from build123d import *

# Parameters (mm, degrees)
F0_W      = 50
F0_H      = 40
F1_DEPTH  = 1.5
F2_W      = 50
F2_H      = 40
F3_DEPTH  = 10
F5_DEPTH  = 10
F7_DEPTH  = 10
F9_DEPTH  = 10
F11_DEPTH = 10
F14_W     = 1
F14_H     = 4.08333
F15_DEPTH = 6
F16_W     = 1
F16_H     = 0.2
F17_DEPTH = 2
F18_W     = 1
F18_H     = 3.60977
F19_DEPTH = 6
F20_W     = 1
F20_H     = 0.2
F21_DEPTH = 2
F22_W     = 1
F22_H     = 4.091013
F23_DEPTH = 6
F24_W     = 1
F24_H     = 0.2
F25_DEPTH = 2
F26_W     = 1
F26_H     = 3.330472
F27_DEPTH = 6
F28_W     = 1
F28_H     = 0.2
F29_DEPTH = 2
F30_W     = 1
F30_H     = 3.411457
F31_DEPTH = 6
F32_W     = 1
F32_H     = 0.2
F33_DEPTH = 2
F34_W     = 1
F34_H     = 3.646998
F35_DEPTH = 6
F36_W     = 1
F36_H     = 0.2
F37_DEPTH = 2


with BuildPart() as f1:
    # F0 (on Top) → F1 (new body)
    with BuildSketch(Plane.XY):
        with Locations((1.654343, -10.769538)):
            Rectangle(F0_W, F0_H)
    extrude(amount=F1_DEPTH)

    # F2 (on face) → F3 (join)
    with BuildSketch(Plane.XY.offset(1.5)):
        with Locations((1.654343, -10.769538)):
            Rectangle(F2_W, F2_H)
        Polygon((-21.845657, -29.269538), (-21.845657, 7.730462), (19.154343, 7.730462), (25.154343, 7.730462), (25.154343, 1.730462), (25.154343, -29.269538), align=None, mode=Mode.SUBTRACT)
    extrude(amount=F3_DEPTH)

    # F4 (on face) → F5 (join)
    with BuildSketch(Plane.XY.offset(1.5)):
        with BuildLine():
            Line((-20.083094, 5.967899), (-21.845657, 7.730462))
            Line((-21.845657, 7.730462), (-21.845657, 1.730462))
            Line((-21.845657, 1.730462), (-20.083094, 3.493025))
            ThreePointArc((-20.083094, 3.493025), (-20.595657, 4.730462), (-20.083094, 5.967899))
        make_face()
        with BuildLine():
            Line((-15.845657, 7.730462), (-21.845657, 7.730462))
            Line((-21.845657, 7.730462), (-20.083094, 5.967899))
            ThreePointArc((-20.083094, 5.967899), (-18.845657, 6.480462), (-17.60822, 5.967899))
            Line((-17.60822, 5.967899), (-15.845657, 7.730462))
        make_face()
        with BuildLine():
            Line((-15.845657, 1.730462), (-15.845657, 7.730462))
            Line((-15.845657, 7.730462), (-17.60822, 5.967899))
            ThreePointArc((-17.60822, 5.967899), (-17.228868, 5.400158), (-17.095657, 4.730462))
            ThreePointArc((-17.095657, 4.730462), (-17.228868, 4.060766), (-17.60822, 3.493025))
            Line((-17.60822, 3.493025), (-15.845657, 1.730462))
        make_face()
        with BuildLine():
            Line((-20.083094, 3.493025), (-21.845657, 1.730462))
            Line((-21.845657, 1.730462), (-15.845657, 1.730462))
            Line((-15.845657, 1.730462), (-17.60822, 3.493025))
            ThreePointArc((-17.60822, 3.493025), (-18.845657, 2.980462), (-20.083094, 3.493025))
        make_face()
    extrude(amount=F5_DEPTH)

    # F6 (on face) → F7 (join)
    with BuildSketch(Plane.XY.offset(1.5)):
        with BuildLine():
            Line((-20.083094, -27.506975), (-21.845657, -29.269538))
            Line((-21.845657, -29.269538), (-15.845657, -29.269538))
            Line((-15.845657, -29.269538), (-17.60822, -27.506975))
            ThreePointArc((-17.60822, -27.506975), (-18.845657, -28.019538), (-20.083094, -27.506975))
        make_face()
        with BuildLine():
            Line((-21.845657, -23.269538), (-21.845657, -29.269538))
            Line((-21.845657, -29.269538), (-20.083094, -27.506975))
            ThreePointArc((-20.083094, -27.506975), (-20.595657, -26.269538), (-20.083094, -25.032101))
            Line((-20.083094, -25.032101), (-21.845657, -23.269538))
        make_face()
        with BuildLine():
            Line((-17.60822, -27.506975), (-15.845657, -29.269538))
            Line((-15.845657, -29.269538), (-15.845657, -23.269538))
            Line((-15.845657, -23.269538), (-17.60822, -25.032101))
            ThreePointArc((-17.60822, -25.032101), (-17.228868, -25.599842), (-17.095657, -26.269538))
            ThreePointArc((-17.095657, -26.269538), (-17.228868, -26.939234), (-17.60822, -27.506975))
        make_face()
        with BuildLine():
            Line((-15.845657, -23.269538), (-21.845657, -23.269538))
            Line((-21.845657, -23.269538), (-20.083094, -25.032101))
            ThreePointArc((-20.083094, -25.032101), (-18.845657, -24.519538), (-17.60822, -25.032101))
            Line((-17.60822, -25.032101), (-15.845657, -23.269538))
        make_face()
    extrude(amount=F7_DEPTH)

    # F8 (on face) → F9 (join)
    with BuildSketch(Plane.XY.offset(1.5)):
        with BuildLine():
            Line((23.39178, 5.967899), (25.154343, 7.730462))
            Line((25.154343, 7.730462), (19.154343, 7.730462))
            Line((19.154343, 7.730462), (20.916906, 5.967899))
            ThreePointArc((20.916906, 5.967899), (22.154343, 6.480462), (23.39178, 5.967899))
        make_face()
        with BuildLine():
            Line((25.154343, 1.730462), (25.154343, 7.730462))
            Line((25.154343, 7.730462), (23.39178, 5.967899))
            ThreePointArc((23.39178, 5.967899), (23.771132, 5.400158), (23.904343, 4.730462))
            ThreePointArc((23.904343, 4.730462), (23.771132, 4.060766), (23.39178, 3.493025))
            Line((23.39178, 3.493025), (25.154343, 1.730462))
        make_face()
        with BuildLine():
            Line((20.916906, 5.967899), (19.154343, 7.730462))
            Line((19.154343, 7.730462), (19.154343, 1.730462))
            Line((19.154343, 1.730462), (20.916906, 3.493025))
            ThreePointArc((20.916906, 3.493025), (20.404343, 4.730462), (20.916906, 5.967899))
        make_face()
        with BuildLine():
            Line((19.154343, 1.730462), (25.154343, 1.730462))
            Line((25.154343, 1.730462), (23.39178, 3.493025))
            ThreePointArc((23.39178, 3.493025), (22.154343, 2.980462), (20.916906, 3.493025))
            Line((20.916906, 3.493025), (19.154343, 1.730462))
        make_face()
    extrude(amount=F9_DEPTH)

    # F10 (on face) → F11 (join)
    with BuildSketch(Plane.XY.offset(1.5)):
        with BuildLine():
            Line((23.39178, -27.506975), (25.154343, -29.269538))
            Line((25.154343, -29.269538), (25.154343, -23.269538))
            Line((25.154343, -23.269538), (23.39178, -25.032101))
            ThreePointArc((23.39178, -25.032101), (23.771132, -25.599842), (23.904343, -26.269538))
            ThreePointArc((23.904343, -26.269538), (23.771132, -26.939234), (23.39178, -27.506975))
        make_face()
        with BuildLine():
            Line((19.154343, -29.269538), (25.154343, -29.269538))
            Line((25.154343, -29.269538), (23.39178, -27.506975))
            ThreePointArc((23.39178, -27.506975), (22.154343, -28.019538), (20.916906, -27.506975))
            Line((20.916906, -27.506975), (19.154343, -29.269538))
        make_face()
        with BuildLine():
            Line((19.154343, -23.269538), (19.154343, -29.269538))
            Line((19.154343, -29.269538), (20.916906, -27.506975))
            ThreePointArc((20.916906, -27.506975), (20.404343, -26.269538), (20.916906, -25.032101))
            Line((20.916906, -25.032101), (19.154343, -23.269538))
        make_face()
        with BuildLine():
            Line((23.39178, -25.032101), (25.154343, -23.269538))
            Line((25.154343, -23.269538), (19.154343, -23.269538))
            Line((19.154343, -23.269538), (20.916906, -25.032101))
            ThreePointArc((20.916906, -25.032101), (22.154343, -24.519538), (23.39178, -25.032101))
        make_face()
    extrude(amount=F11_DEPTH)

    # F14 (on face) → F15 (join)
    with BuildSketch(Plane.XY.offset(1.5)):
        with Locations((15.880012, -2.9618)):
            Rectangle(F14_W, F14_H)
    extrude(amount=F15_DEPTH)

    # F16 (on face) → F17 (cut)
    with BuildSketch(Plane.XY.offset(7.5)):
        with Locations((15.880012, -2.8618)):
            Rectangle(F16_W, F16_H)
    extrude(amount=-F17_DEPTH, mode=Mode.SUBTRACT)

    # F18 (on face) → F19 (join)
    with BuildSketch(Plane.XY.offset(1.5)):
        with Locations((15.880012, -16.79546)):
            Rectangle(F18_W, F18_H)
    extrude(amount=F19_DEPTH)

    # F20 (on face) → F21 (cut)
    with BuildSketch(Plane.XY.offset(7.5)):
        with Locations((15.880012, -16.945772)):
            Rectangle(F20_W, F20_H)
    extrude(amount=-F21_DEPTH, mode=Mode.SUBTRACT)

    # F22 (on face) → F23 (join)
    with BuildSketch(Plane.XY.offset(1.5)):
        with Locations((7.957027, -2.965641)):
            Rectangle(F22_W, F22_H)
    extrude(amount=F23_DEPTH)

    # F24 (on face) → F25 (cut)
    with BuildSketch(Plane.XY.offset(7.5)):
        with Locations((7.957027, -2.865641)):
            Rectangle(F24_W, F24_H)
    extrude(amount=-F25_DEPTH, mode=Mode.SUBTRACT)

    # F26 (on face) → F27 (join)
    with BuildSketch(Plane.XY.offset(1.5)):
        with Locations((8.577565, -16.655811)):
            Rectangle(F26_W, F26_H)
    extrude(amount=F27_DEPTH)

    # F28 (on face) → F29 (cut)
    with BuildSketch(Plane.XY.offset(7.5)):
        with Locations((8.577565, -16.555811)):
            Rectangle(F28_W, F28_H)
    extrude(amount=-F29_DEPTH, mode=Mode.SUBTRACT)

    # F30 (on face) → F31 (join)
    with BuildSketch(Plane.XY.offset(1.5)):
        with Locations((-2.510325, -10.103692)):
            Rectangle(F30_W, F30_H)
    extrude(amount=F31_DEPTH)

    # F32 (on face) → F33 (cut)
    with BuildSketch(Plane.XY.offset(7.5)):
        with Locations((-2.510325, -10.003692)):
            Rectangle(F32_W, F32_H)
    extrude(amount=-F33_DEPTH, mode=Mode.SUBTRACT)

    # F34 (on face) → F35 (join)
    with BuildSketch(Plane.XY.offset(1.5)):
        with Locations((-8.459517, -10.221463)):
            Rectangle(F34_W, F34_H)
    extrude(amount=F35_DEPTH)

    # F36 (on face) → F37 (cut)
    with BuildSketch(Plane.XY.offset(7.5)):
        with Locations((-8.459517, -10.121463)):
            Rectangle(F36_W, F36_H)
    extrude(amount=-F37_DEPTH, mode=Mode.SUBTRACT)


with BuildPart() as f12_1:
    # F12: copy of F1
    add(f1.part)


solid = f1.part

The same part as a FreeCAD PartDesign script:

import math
import FreeCAD as App
import Part
import Sketcher
from FreeCAD import Vector

doc = App.newDocument("Part")
body = doc.addObject("PartDesign::Body", "Body")

# Sketch on XY plane
sketch1 = body.newObject("Sketcher::SketchObject", "Sketch")
sketch1.AttachmentSupport = (doc.getObject("XY_Plane"), [""])
sketch1.MapMode = "FlatFace"
sketch1.addGeometry([
    Part.LineSegment(Vector(-23.345657, 9.230462, 0), Vector(-23.345657, -30.769538, 0)),
    Part.LineSegment(Vector(-23.345657, -30.769538, 0), Vector(26.654343, -30.769538, 0)),
    Part.LineSegment(Vector(26.654343, -30.769538, 0), Vector(26.654343, 9.230462, 0)),
    Part.LineSegment(Vector(26.654343, 9.230462, 0), Vector(-23.345657, 9.230462, 0)),
], False)
sketch1.addConstraint([
    Sketcher.Constraint("Coincident", 0, 2, 1, 1),
    Sketcher.Constraint("Coincident", 1, 2, 2, 1),
    Sketcher.Constraint("Coincident", 2, 2, 3, 1),
    Sketcher.Constraint("Coincident", 3, 2, 0, 1),
    Sketcher.Constraint("Vertical", 0),
    Sketcher.Constraint("Horizontal", 1),
    Sketcher.Constraint("Vertical", 2),
    Sketcher.Constraint("Horizontal", 3),
    Sketcher.Constraint("DistanceX", 1, 1, 1, 2, 50.0),
    Sketcher.Constraint("DistanceY", 0, 2, 0, 1, 40.0),
    Sketcher.Constraint("DistanceY", 0, 2, -1, 1, 30.769538),
    Sketcher.Constraint("DistanceX", 0, 2, -1, 1, 23.345657),
])
pad1 = body.newObject("PartDesign::Pad", "Pad")
pad1.Profile = sketch1
pad1.Length = 1.5

# Sketch on XY plane
sketch2 = body.newObject("Sketcher::SketchObject", "Sketch001")
sketch2.AttachmentSupport = (doc.getObject("XY_Plane"), [""])
sketch2.MapMode = "FlatFace"
sketch2.AttachmentOffset = App.Placement(Vector(0, 0, 1.5), App.Rotation())
sketch2.addGeometry([
    Part.LineSegment(Vector(-23.345657, 9.230462, 0), Vector(-23.345657, -30.769538, 0)),  # 0
    Part.LineSegment(Vector(-23.345657, -30.769538, 0), Vector(26.654343, -30.769538, 0)),  # 1
    Part.LineSegment(Vector(26.654343, -30.769538, 0), Vector(26.654343, 9.230462, 0)),  # 2
    Part.LineSegment(Vector(26.654343, 9.230462, 0), Vector(-23.345657, 9.230462, 0)),  # 3
    Part.LineSegment(Vector(25.154343, -29.269538, 0), Vector(-21.845657, -29.269538, 0)),  # 4
    Part.LineSegment(Vector(-21.845657, -29.269538, 0), Vector(-21.845657, 7.730462, 0)),  # 5
    Part.LineSegment(Vector(-21.845657, 7.730462, 0), Vector(25.154343, 7.730462, 0)),  # 6
    Part.LineSegment(Vector(25.154343, 7.730462, 0), Vector(25.154343, -29.269538, 0)),  # 7
], False)
sketch2.addConstraint([
    Sketcher.Constraint("Coincident", 0, 2, 1, 1),
    Sketcher.Constraint("Coincident", 1, 2, 2, 1),
    Sketcher.Constraint("Coincident", 2, 2, 3, 1),
    Sketcher.Constraint("Coincident", 3, 2, 0, 1),
    Sketcher.Constraint("Coincident", 4, 2, 5, 1),
    Sketcher.Constraint("Coincident", 5, 2, 6, 1),
    Sketcher.Constraint("Coincident", 6, 2, 7, 1),
    Sketcher.Constraint("Coincident", 7, 2, 4, 1),
    Sketcher.Constraint("Vertical", 0),
    Sketcher.Constraint("Horizontal", 1),
    Sketcher.Constraint("Vertical", 2),
    Sketcher.Constraint("Horizontal", 3),
    Sketcher.Constraint("Horizontal", 4),
    Sketcher.Constraint("Vertical", 5),
    Sketcher.Constraint("Horizontal", 6),
    Sketcher.Constraint("Vertical", 7),
    Sketcher.Constraint("DistanceX", 1, 1, 1, 2, 50.0),
    Sketcher.Constraint("DistanceX", 4, 2, 4, 1, 47.0),
    Sketcher.Constraint("DistanceY", 0, 2, 0, 1, 40.0),
    Sketcher.Constraint("DistanceY", 5, 1, 5, 2, 37.0),
    Sketcher.Constraint("DistanceX", 0, 2, 4, 2, 1.5),
    Sketcher.Constraint("DistanceY", 0, 2, 4, 2, 1.5),
    Sketcher.Constraint("DistanceY", 0, 2, -1, 1, 30.769538),
    Sketcher.Constraint("DistanceX", 0, 2, -1, 1, 23.345657),
])
pad2 = body.newObject("PartDesign::Pad", "Pad001")
pad2.Profile = sketch2
pad2.Length = 10

# Sketch on XY plane
sketch3 = body.newObject("Sketcher::SketchObject", "Sketch002")
sketch3.AttachmentSupport = (doc.getObject("XY_Plane"), [""])
sketch3.MapMode = "FlatFace"
sketch3.AttachmentOffset = App.Placement(Vector(0, 0, 1.5), App.Rotation())
sketch3.addGeometry([
    Part.LineSegment(Vector(-21.845657, 7.730462, 0), Vector(-21.845657, 1.730462, 0)),  # 0
    Part.LineSegment(Vector(-21.845657, 1.730462, 0), Vector(-15.845657, 1.730462, 0)),  # 1
    Part.LineSegment(Vector(-15.845657, 1.730462, 0), Vector(-15.845657, 7.730462, 0)),  # 2
    Part.LineSegment(Vector(-15.845657, 7.730462, 0), Vector(-21.845657, 7.730462, 0)),  # 3
    Part.ArcOfCircle(Part.Circle(Vector(-18.845656, 4.730462, 0), Vector(0, 0, 1), 1.750001), math.radians(135.000015), math.radians(224.999985)),  # 4
    Part.ArcOfCircle(Part.Circle(Vector(-18.845657, 4.730461, 0), Vector(0, 0, 1), 1.750001), math.radians(45.000015), math.radians(134.999985)),  # 5
    Part.ArcOfCircle(Part.Circle(Vector(-18.84566, 4.730461, 0), Vector(0, 0, 1), 1.750003), math.radians(0.000036), math.radians(44.999949)),  # 6
    Part.ArcOfCircle(Part.Circle(Vector(-18.84566, 4.730463, 0), Vector(0, 0, 1), 1.750003), math.radians(-44.999949), math.radians(-0.000036)),  # 7
    Part.ArcOfCircle(Part.Circle(Vector(-18.845657, 4.730463, 0), Vector(0, 0, 1), 1.750001), math.radians(-134.999985), math.radians(-45.000015)),  # 8
], False)
sketch3.addConstraint([
    Sketcher.Constraint("Coincident", 0, 2, 1, 1),
    Sketcher.Constraint("Coincident", 1, 2, 2, 1),
    Sketcher.Constraint("Coincident", 2, 2, 3, 1),
    Sketcher.Constraint("Coincident", 3, 2, 0, 1),
    Sketcher.Constraint("Tangent", 4, 1, 5, 2),
    Sketcher.Constraint("Tangent", 5, 1, 6, 2),
    Sketcher.Constraint("Tangent", 6, 1, 7, 2),
    Sketcher.Constraint("Tangent", 7, 1, 8, 2),
    Sketcher.Constraint("Tangent", 8, 1, 4, 2),
    Sketcher.Constraint("Vertical", 0),
    Sketcher.Constraint("Horizontal", 1),
    Sketcher.Constraint("Vertical", 2),
    Sketcher.Constraint("Horizontal", 3),
    Sketcher.Constraint("Coincident", 6, 3, 4, 3),
    Sketcher.Constraint("Horizontal", 4, 1, 5, 1),
    Sketcher.Constraint("Horizontal", 8, 3, 6, 1),
    Sketcher.Constraint("Horizontal", 7, 1, 8, 1),
    Sketcher.Constraint("Vertical", 5, 1, 7, 1),
    Sketcher.Constraint("Equal", 3, 0),
    Sketcher.Constraint("DistanceX", 1, 1, 1, 2, 6.0),
    Sketcher.Constraint("Radius", 4, 1.750001),
    Sketcher.Constraint("DistanceY", 0, 2, 6, 3, 2.999999),
    Sketcher.Constraint("DistanceX", 0, 2, 5, 3, 3.0),
    Sketcher.Constraint("DistanceY", -1, 1, 4, 1, 5.967899),
    Sketcher.Constraint("DistanceY", -1, 1, 5, 3, 4.730461),
    Sketcher.Constraint("DistanceX", 6, 3, -1, 1, 18.84566),
])
pad3 = body.newObject("PartDesign::Pad", "Pad002")
pad3.Profile = sketch3
pad3.Length = 10

# Sketch on XY plane
sketch4 = body.newObject("Sketcher::SketchObject", "Sketch003")
sketch4.AttachmentSupport = (doc.getObject("XY_Plane"), [""])
sketch4.MapMode = "FlatFace"
sketch4.AttachmentOffset = App.Placement(Vector(0, 0, 1.5), App.Rotation())
sketch4.addGeometry([
    Part.LineSegment(Vector(-21.845657, -29.269538, 0), Vector(-15.845657, -29.269538, 0)),  # 0
    Part.LineSegment(Vector(-15.845657, -29.269538, 0), Vector(-15.845657, -23.269538, 0)),  # 1
    Part.LineSegment(Vector(-15.845657, -23.269538, 0), Vector(-21.845657, -23.269538, 0)),  # 2
    Part.LineSegment(Vector(-21.845657, -23.269538, 0), Vector(-21.845657, -29.269538, 0)),  # 3
    Part.ArcOfCircle(Part.Circle(Vector(-18.84566, -26.269539, 0), Vector(0, 0, 1), 1.750003), math.radians(0.000036), math.radians(44.999949)),  # 4
    Part.ArcOfCircle(Part.Circle(Vector(-18.84566, -26.269537, 0), Vector(0, 0, 1), 1.750003), math.radians(-44.999949), math.radians(-0.000036)),  # 5
    Part.ArcOfCircle(Part.Circle(Vector(-18.845657, -26.269537, 0), Vector(0, 0, 1), 1.750001), math.radians(-134.999985), math.radians(-45.000015)),  # 6
    Part.ArcOfCircle(Part.Circle(Vector(-18.845656, -26.269538, 0), Vector(0, 0, 1), 1.750001), math.radians(135.000015), math.radians(224.999985)),  # 7
    Part.ArcOfCircle(Part.Circle(Vector(-18.845657, -26.269539, 0), Vector(0, 0, 1), 1.750001), math.radians(45.000015), math.radians(134.999985)),  # 8
], False)
sketch4.addConstraint([
    Sketcher.Constraint("Coincident", 0, 2, 1, 1),
    Sketcher.Constraint("Coincident", 1, 2, 2, 1),
    Sketcher.Constraint("Coincident", 2, 2, 3, 1),
    Sketcher.Constraint("Coincident", 3, 2, 0, 1),
    Sketcher.Constraint("Tangent", 4, 1, 5, 2),
    Sketcher.Constraint("Tangent", 5, 1, 6, 2),
    Sketcher.Constraint("Tangent", 6, 1, 7, 2),
    Sketcher.Constraint("Tangent", 7, 1, 8, 2),
    Sketcher.Constraint("Tangent", 8, 1, 4, 2),
    Sketcher.Constraint("Horizontal", 0),
    Sketcher.Constraint("Vertical", 1),
    Sketcher.Constraint("Horizontal", 2),
    Sketcher.Constraint("Vertical", 3),
    Sketcher.Constraint("Coincident", 6, 3, 4, 3),
    Sketcher.Constraint("Horizontal", 8, 3, 4, 1),
    Sketcher.Constraint("Horizontal", 5, 1, 6, 1),
    Sketcher.Constraint("Horizontal", 7, 1, 8, 1),
    Sketcher.Constraint("Vertical", 6, 1, 7, 1),
    Sketcher.Constraint("Equal", 2, 1),
    Sketcher.Constraint("DistanceX", 0, 1, 0, 2, 6.0),
    Sketcher.Constraint("Radius", 6, 1.750001),
    Sketcher.Constraint("DistanceX", 7, 3, 0, 2, 2.999999),
    Sketcher.Constraint("DistanceY", 0, 2, 7, 3, 3.0),
    Sketcher.Constraint("DistanceY", 7, 1, -1, 1, 25.032101),
    Sketcher.Constraint("DistanceX", 4, 3, -1, 1, 18.84566),
    Sketcher.Constraint("DistanceY", 4, 3, -1, 1, 26.269539),
])
pad4 = body.newObject("PartDesign::Pad", "Pad003")
pad4.Profile = sketch4
pad4.Length = 10

# Sketch on XY plane
sketch5 = body.newObject("Sketcher::SketchObject", "Sketch004")
sketch5.AttachmentSupport = (doc.getObject("XY_Plane"), [""])
sketch5.MapMode = "FlatFace"
sketch5.AttachmentOffset = App.Placement(Vector(0, 0, 1.5), App.Rotation())
sketch5.addGeometry([
    Part.LineSegment(Vector(25.154343, 7.730462, 0), Vector(19.154343, 7.730462, 0)),  # 0
    Part.LineSegment(Vector(19.154343, 7.730462, 0), Vector(19.154343, 1.730462, 0)),  # 1
    Part.LineSegment(Vector(19.154343, 1.730462, 0), Vector(25.154343, 1.730462, 0)),  # 2
    Part.LineSegment(Vector(25.154343, 1.730462, 0), Vector(25.154343, 7.730462, 0)),  # 3
    Part.ArcOfCircle(Part.Circle(Vector(22.154344, 4.730462, 0), Vector(0, 0, 1), 1.750001), math.radians(135.000015), math.radians(224.999985)),  # 4
    Part.ArcOfCircle(Part.Circle(Vector(22.154343, 4.730461, 0), Vector(0, 0, 1), 1.750001), math.radians(45.000015), math.radians(134.999985)),  # 5
    Part.ArcOfCircle(Part.Circle(Vector(22.15434, 4.730461, 0), Vector(0, 0, 1), 1.750003), math.radians(0.000036), math.radians(44.999949)),  # 6
    Part.ArcOfCircle(Part.Circle(Vector(22.15434, 4.730463, 0), Vector(0, 0, 1), 1.750003), math.radians(-44.999949), math.radians(-0.000036)),  # 7
    Part.ArcOfCircle(Part.Circle(Vector(22.154343, 4.730463, 0), Vector(0, 0, 1), 1.750001), math.radians(-134.999985), math.radians(-45.000015)),  # 8
], False)
sketch5.addConstraint([
    Sketcher.Constraint("Coincident", 0, 2, 1, 1),
    Sketcher.Constraint("Coincident", 1, 2, 2, 1),
    Sketcher.Constraint("Coincident", 2, 2, 3, 1),
    Sketcher.Constraint("Coincident", 3, 2, 0, 1),
    Sketcher.Constraint("Tangent", 4, 1, 5, 2),
    Sketcher.Constraint("Tangent", 5, 1, 6, 2),
    Sketcher.Constraint("Tangent", 6, 1, 7, 2),
    Sketcher.Constraint("Tangent", 7, 1, 8, 2),
    Sketcher.Constraint("Tangent", 8, 1, 4, 2),
    Sketcher.Constraint("Horizontal", 0),
    Sketcher.Constraint("Vertical", 1),
    Sketcher.Constraint("Horizontal", 2),
    Sketcher.Constraint("Vertical", 3),
    Sketcher.Constraint("Coincident", 6, 3, 4, 3),
    Sketcher.Constraint("Horizontal", 4, 1, 5, 1),
    Sketcher.Constraint("Horizontal", 8, 3, 6, 1),
    Sketcher.Constraint("Horizontal", 7, 1, 8, 1),
    Sketcher.Constraint("Vertical", 5, 1, 7, 1),
    Sketcher.Constraint("Equal", 2, 1),
    Sketcher.Constraint("DistanceX", 0, 2, 0, 1, 6.0),
    Sketcher.Constraint("Radius", 4, 1.750001),
    Sketcher.Constraint("DistanceY", 7, 3, 0, 2, 2.999999),
    Sketcher.Constraint("DistanceX", 0, 2, 8, 3, 3.0),
    Sketcher.Constraint("DistanceY", -1, 1, 4, 1, 5.967899),
    Sketcher.Constraint("DistanceY", -1, 1, 5, 3, 4.730461),
    Sketcher.Constraint("DistanceX", -1, 1, 6, 3, 22.15434),
])
pad5 = body.newObject("PartDesign::Pad", "Pad004")
pad5.Profile = sketch5
pad5.Length = 10

# Sketch on XY plane
sketch6 = body.newObject("Sketcher::SketchObject", "Sketch005")
sketch6.AttachmentSupport = (doc.getObject("XY_Plane"), [""])
sketch6.MapMode = "FlatFace"
sketch6.AttachmentOffset = App.Placement(Vector(0, 0, 1.5), App.Rotation())
sketch6.addGeometry([
    Part.LineSegment(Vector(25.154343, -29.269538, 0), Vector(25.154343, -23.269538, 0)),  # 0
    Part.LineSegment(Vector(25.154343, -23.269538, 0), Vector(19.154343, -23.269538, 0)),  # 1
    Part.LineSegment(Vector(19.154343, -23.269538, 0), Vector(19.154343, -29.269538, 0)),  # 2
    Part.LineSegment(Vector(19.154343, -29.269538, 0), Vector(25.154343, -29.269538, 0)),  # 3
    Part.ArcOfCircle(Part.Circle(Vector(22.15434, -26.269539, 0), Vector(0, 0, 1), 1.750003), math.radians(0.000036), math.radians(44.999949)),  # 4
    Part.ArcOfCircle(Part.Circle(Vector(22.15434, -26.269537, 0), Vector(0, 0, 1), 1.750003), math.radians(-44.999949), math.radians(-0.000036)),  # 5
    Part.ArcOfCircle(Part.Circle(Vector(22.154343, -26.269537, 0), Vector(0, 0, 1), 1.750001), math.radians(-134.999985), math.radians(-45.000015)),  # 6
    Part.ArcOfCircle(Part.Circle(Vector(22.154344, -26.269538, 0), Vector(0, 0, 1), 1.750001), math.radians(135.000015), math.radians(224.999985)),  # 7
    Part.ArcOfCircle(Part.Circle(Vector(22.154343, -26.269539, 0), Vector(0, 0, 1), 1.750001), math.radians(45.000015), math.radians(134.999985)),  # 8
], False)
sketch6.addConstraint([
    Sketcher.Constraint("Coincident", 0, 2, 1, 1),
    Sketcher.Constraint("Coincident", 1, 2, 2, 1),
    Sketcher.Constraint("Coincident", 2, 2, 3, 1),
    Sketcher.Constraint("Coincident", 3, 2, 0, 1),
    Sketcher.Constraint("Tangent", 4, 1, 5, 2),
    Sketcher.Constraint("Tangent", 5, 1, 6, 2),
    Sketcher.Constraint("Tangent", 6, 1, 7, 2),
    Sketcher.Constraint("Tangent", 7, 1, 8, 2),
    Sketcher.Constraint("Tangent", 8, 1, 4, 2),
    Sketcher.Constraint("Vertical", 0),
    Sketcher.Constraint("Horizontal", 1),
    Sketcher.Constraint("Vertical", 2),
    Sketcher.Constraint("Horizontal", 3),
    Sketcher.Constraint("Coincident", 6, 3, 4, 3),
    Sketcher.Constraint("Horizontal", 8, 3, 4, 1),
    Sketcher.Constraint("Horizontal", 5, 1, 6, 1),
    Sketcher.Constraint("Horizontal", 7, 1, 8, 1),
    Sketcher.Constraint("Vertical", 6, 1, 7, 1),
    Sketcher.Constraint("Equal", 3, 0),
    Sketcher.Constraint("DistanceX", 1, 2, 1, 1, 6.0),
    Sketcher.Constraint("Radius", 6, 1.750001),
    Sketcher.Constraint("DistanceX", 6, 3, 0, 2, 3.0),
    Sketcher.Constraint("DistanceY", 6, 3, 0, 2, 2.999999),
    Sketcher.Constraint("DistanceY", 7, 1, -1, 1, 25.032101),
    Sketcher.Constraint("DistanceX", -1, 1, 4, 3, 22.15434),
    Sketcher.Constraint("DistanceY", 4, 3, -1, 1, 26.269539),
])
pad6 = body.newObject("PartDesign::Pad", "Pad005")
pad6.Profile = sketch6
pad6.Length = 10

# Sketch on XY plane
sketch7 = body.newObject("Sketcher::SketchObject", "Sketch006")
sketch7.AttachmentSupport = (doc.getObject("XY_Plane"), [""])
sketch7.MapMode = "FlatFace"
sketch7.AttachmentOffset = App.Placement(Vector(0, 0, 1.5), App.Rotation())
sketch7.addGeometry([
    Part.LineSegment(Vector(15.380012, -0.920135, 0), Vector(15.380012, -5.003465, 0)),
    Part.LineSegment(Vector(15.380012, -5.003465, 0), Vector(16.380012, -5.003465, 0)),
    Part.LineSegment(Vector(16.380012, -5.003465, 0), Vector(16.380012, -0.920135, 0)),
    Part.LineSegment(Vector(16.380012, -0.920135, 0), Vector(15.380012, -0.920135, 0)),
], False)
sketch7.addConstraint([
    Sketcher.Constraint("Coincident", 0, 2, 1, 1),
    Sketcher.Constraint("Coincident", 1, 2, 2, 1),
    Sketcher.Constraint("Coincident", 2, 2, 3, 1),
    Sketcher.Constraint("Coincident", 3, 2, 0, 1),
    Sketcher.Constraint("Vertical", 0),
    Sketcher.Constraint("Horizontal", 1),
    Sketcher.Constraint("Vertical", 2),
    Sketcher.Constraint("Horizontal", 3),
    Sketcher.Constraint("DistanceX", 1, 1, 1, 2, 1.0),
    Sketcher.Constraint("DistanceY", 0, 2, 0, 1, 4.08333),
    Sketcher.Constraint("DistanceX", -1, 1, 0, 2, 15.380012),
    Sketcher.Constraint("DistanceY", 0, 2, -1, 1, 5.003465),
])
pad7 = body.newObject("PartDesign::Pad", "Pad006")
pad7.Profile = sketch7
pad7.Length = 6

# Sketch on XY plane
sketch8 = body.newObject("Sketcher::SketchObject", "Sketch007")
sketch8.AttachmentSupport = (doc.getObject("XY_Plane"), [""])
sketch8.MapMode = "FlatFace"
sketch8.AttachmentOffset = App.Placement(Vector(0, 0, 7.5), App.Rotation())
sketch8.addGeometry([
    Part.LineSegment(Vector(15.380012, -2.7618, 0), Vector(15.380012, -2.9618, 0)),
    Part.LineSegment(Vector(15.380012, -2.9618, 0), Vector(16.380012, -2.9618, 0)),
    Part.LineSegment(Vector(16.380012, -2.9618, 0), Vector(16.380012, -2.7618, 0)),
    Part.LineSegment(Vector(16.380012, -2.7618, 0), Vector(15.380012, -2.7618, 0)),
], False)
sketch8.addConstraint([
    Sketcher.Constraint("Coincident", 0, 2, 1, 1),
    Sketcher.Constraint("Coincident", 1, 2, 2, 1),
    Sketcher.Constraint("Coincident", 2, 2, 3, 1),
    Sketcher.Constraint("Coincident", 3, 2, 0, 1),
    Sketcher.Constraint("Vertical", 0),
    Sketcher.Constraint("Horizontal", 1),
    Sketcher.Constraint("Vertical", 2),
    Sketcher.Constraint("Horizontal", 3),
    Sketcher.Constraint("DistanceX", 1, 1, 1, 2, 1.0),
    Sketcher.Constraint("DistanceY", 0, 2, 0, 1, 0.2),
    Sketcher.Constraint("DistanceY", 0, 2, -1, 1, 2.9618),
    Sketcher.Constraint("DistanceX", -1, 1, 0, 2, 15.380012),
])
pocket1 = body.newObject("PartDesign::Pocket", "Pocket")
pocket1.Profile = sketch8
pocket1.Length = 2

# Sketch on XY plane
sketch9 = body.newObject("Sketcher::SketchObject", "Sketch008")
sketch9.AttachmentSupport = (doc.getObject("XY_Plane"), [""])
sketch9.MapMode = "FlatFace"
sketch9.AttachmentOffset = App.Placement(Vector(0, 0, 1.5), App.Rotation())
sketch9.addGeometry([
    Part.LineSegment(Vector(15.380012, -14.990575, 0), Vector(15.380012, -18.600345, 0)),
    Part.LineSegment(Vector(15.380012, -18.600345, 0), Vector(16.380012, -18.600345, 0)),
    Part.LineSegment(Vector(16.380012, -18.600345, 0), Vector(16.380012, -14.990575, 0)),
    Part.LineSegment(Vector(16.380012, -14.990575, 0), Vector(15.380012, -14.990575, 0)),
], False)
sketch9.addConstraint([
    Sketcher.Constraint("Coincident", 0, 2, 1, 1),
    Sketcher.Constraint("Coincident", 1, 2, 2, 1),
    Sketcher.Constraint("Coincident", 2, 2, 3, 1),
    Sketcher.Constraint("Coincident", 3, 2, 0, 1),
    Sketcher.Constraint("Vertical", 0),
    Sketcher.Constraint("Horizontal", 1),
    Sketcher.Constraint("Vertical", 2),
    Sketcher.Constraint("Horizontal", 3),
    Sketcher.Constraint("DistanceX", 1, 1, 1, 2, 1.0),
    Sketcher.Constraint("DistanceY", 0, 2, 0, 1, 3.60977),
    Sketcher.Constraint("DistanceX", -1, 1, 0, 2, 15.380012),
    Sketcher.Constraint("DistanceY", 0, 2, -1, 1, 18.600345),
])
pad8 = body.newObject("PartDesign::Pad", "Pad007")
pad8.Profile = sketch9
pad8.Length = 6

# Sketch on XY plane
sketch10 = body.newObject("Sketcher::SketchObject", "Sketch009")
sketch10.AttachmentSupport = (doc.getObject("XY_Plane"), [""])
sketch10.MapMode = "FlatFace"
sketch10.AttachmentOffset = App.Placement(Vector(0, 0, 7.5), App.Rotation())
sketch10.addGeometry([
    Part.LineSegment(Vector(15.380012, -16.845772, 0), Vector(15.380012, -17.045772, 0)),
    Part.LineSegment(Vector(15.380012, -17.045772, 0), Vector(16.380012, -17.045772, 0)),
    Part.LineSegment(Vector(16.380012, -17.045772, 0), Vector(16.380012, -16.845772, 0)),
    Part.LineSegment(Vector(16.380012, -16.845772, 0), Vector(15.380012, -16.845772, 0)),
], False)
sketch10.addConstraint([
    Sketcher.Constraint("Coincident", 0, 2, 1, 1),
    Sketcher.Constraint("Coincident", 1, 2, 2, 1),
    Sketcher.Constraint("Coincident", 2, 2, 3, 1),
    Sketcher.Constraint("Coincident", 3, 2, 0, 1),
    Sketcher.Constraint("Vertical", 0),
    Sketcher.Constraint("Horizontal", 1),
    Sketcher.Constraint("Vertical", 2),
    Sketcher.Constraint("Horizontal", 3),
    Sketcher.Constraint("DistanceX", 1, 1, 1, 2, 1.0),
    Sketcher.Constraint("DistanceY", 0, 2, 0, 1, 0.2),
    Sketcher.Constraint("DistanceY", 0, 2, -1, 1, 17.045772),
    Sketcher.Constraint("DistanceX", -1, 1, 0, 2, 15.380012),
])
pocket2 = body.newObject("PartDesign::Pocket", "Pocket001")
pocket2.Profile = sketch10
pocket2.Length = 2

# Sketch on XY plane
sketch11 = body.newObject("Sketcher::SketchObject", "Sketch010")
sketch11.AttachmentSupport = (doc.getObject("XY_Plane"), [""])
sketch11.MapMode = "FlatFace"
sketch11.AttachmentOffset = App.Placement(Vector(0, 0, 1.5), App.Rotation())
sketch11.addGeometry([
    Part.LineSegment(Vector(7.457027, -0.920134, 0), Vector(7.457027, -5.011147, 0)),
    Part.LineSegment(Vector(7.457027, -5.011147, 0), Vector(8.457027, -5.011147, 0)),
    Part.LineSegment(Vector(8.457027, -5.011147, 0), Vector(8.457027, -0.920134, 0)),
    Part.LineSegment(Vector(8.457027, -0.920134, 0), Vector(7.457027, -0.920134, 0)),
], False)
sketch11.addConstraint([
    Sketcher.Constraint("Coincident", 0, 2, 1, 1),
    Sketcher.Constraint("Coincident", 1, 2, 2, 1),
    Sketcher.Constraint("Coincident", 2, 2, 3, 1),
    Sketcher.Constraint("Coincident", 3, 2, 0, 1),
    Sketcher.Constraint("Vertical", 0),
    Sketcher.Constraint("Horizontal", 1),
    Sketcher.Constraint("Vertical", 2),
    Sketcher.Constraint("Horizontal", 3),
    Sketcher.Constraint("DistanceX", 1, 1, 1, 2, 1.0),
    Sketcher.Constraint("DistanceY", 0, 2, 0, 1, 4.091013),
    Sketcher.Constraint("DistanceX", -1, 1, 0, 2, 7.457027),
    Sketcher.Constraint("DistanceY", 0, 2, -1, 1, 5.011147),
])
pad9 = body.newObject("PartDesign::Pad", "Pad008")
pad9.Profile = sketch11
pad9.Length = 6

# Sketch on XY plane
sketch12 = body.newObject("Sketcher::SketchObject", "Sketch011")
sketch12.AttachmentSupport = (doc.getObject("XY_Plane"), [""])
sketch12.MapMode = "FlatFace"
sketch12.AttachmentOffset = App.Placement(Vector(0, 0, 7.5), App.Rotation())
sketch12.addGeometry([
    Part.LineSegment(Vector(7.457027, -2.765641, 0), Vector(7.457027, -2.965641, 0)),
    Part.LineSegment(Vector(7.457027, -2.965641, 0), Vector(8.457027, -2.965641, 0)),
    Part.LineSegment(Vector(8.457027, -2.965641, 0), Vector(8.457027, -2.765641, 0)),
    Part.LineSegment(Vector(8.457027, -2.765641, 0), Vector(7.457027, -2.765641, 0)),
], False)
sketch12.addConstraint([
    Sketcher.Constraint("Coincident", 0, 2, 1, 1),
    Sketcher.Constraint("Coincident", 1, 2, 2, 1),
    Sketcher.Constraint("Coincident", 2, 2, 3, 1),
    Sketcher.Constraint("Coincident", 3, 2, 0, 1),
    Sketcher.Constraint("Vertical", 0),
    Sketcher.Constraint("Horizontal", 1),
    Sketcher.Constraint("Vertical", 2),
    Sketcher.Constraint("Horizontal", 3),
    Sketcher.Constraint("DistanceX", 1, 1, 1, 2, 1.0),
    Sketcher.Constraint("DistanceY", 0, 2, 0, 1, 0.2),
    Sketcher.Constraint("DistanceY", 0, 2, -1, 1, 2.965641),
    Sketcher.Constraint("DistanceX", -1, 1, 0, 2, 7.457027),
])
pocket3 = body.newObject("PartDesign::Pocket", "Pocket002")
pocket3.Profile = sketch12
pocket3.Length = 2

# Sketch on XY plane
sketch13 = body.newObject("Sketcher::SketchObject", "Sketch012")
sketch13.AttachmentSupport = (doc.getObject("XY_Plane"), [""])
sketch13.MapMode = "FlatFace"
sketch13.AttachmentOffset = App.Placement(Vector(0, 0, 1.5), App.Rotation())
sketch13.addGeometry([
    Part.LineSegment(Vector(8.077565, -14.990575, 0), Vector(8.077565, -18.321047, 0)),
    Part.LineSegment(Vector(8.077565, -18.321047, 0), Vector(9.077565, -18.321047, 0)),
    Part.LineSegment(Vector(9.077565, -18.321047, 0), Vector(9.077565, -14.990575, 0)),
    Part.LineSegment(Vector(9.077565, -14.990575, 0), Vector(8.077565, -14.990575, 0)),
], False)
sketch13.addConstraint([
    Sketcher.Constraint("Coincident", 0, 2, 1, 1),
    Sketcher.Constraint("Coincident", 1, 2, 2, 1),
    Sketcher.Constraint("Coincident", 2, 2, 3, 1),
    Sketcher.Constraint("Coincident", 3, 2, 0, 1),
    Sketcher.Constraint("Vertical", 0),
    Sketcher.Constraint("Horizontal", 1),
    Sketcher.Constraint("Vertical", 2),
    Sketcher.Constraint("Horizontal", 3),
    Sketcher.Constraint("DistanceX", 1, 1, 1, 2, 1.0),
    Sketcher.Constraint("DistanceY", 0, 2, 0, 1, 3.330472),
    Sketcher.Constraint("DistanceX", -1, 1, 0, 2, 8.077565),
    Sketcher.Constraint("DistanceY", 0, 2, -1, 1, 18.321047),
])
pad10 = body.newObject("PartDesign::Pad", "Pad009")
pad10.Profile = sketch13
pad10.Length = 6

# Sketch on XY plane
sketch14 = body.newObject("Sketcher::SketchObject", "Sketch013")
sketch14.AttachmentSupport = (doc.getObject("XY_Plane"), [""])
sketch14.MapMode = "FlatFace"
sketch14.AttachmentOffset = App.Placement(Vector(0, 0, 7.5), App.Rotation())
sketch14.addGeometry([
    Part.LineSegment(Vector(8.077565, -16.455811, 0), Vector(8.077565, -16.655811, 0)),
    Part.LineSegment(Vector(8.077565, -16.655811, 0), Vector(9.077565, -16.655811, 0)),
    Part.LineSegment(Vector(9.077565, -16.655811, 0), Vector(9.077565, -16.455811, 0)),
    Part.LineSegment(Vector(9.077565, -16.455811, 0), Vector(8.077565, -16.455811, 0)),
], False)
sketch14.addConstraint([
    Sketcher.Constraint("Coincident", 0, 2, 1, 1),
    Sketcher.Constraint("Coincident", 1, 2, 2, 1),
    Sketcher.Constraint("Coincident", 2, 2, 3, 1),
    Sketcher.Constraint("Coincident", 3, 2, 0, 1),
    Sketcher.Constraint("Vertical", 0),
    Sketcher.Constraint("Horizontal", 1),
    Sketcher.Constraint("Vertical", 2),
    Sketcher.Constraint("Horizontal", 3),
    Sketcher.Constraint("DistanceX", 1, 1, 1, 2, 1.0),
    Sketcher.Constraint("DistanceY", 0, 2, 0, 1, 0.2),
    Sketcher.Constraint("DistanceY", 0, 2, -1, 1, 16.655811),
    Sketcher.Constraint("DistanceX", -1, 1, 0, 2, 8.077565),
])
pocket4 = body.newObject("PartDesign::Pocket", "Pocket003")
pocket4.Profile = sketch14
pocket4.Length = 2

# Sketch on XY plane
sketch15 = body.newObject("Sketcher::SketchObject", "Sketch014")
sketch15.AttachmentSupport = (doc.getObject("XY_Plane"), [""])
sketch15.MapMode = "FlatFace"
sketch15.AttachmentOffset = App.Placement(Vector(0, 0, 1.5), App.Rotation())
sketch15.addGeometry([
    Part.LineSegment(Vector(-3.010325, -8.397963, 0), Vector(-3.010325, -11.80942, 0)),
    Part.LineSegment(Vector(-3.010325, -11.80942, 0), Vector(-2.010325, -11.80942, 0)),
    Part.LineSegment(Vector(-2.010325, -11.80942, 0), Vector(-2.010325, -8.397963, 0)),
    Part.LineSegment(Vector(-2.010325, -8.397963, 0), Vector(-3.010325, -8.397963, 0)),
], False)
sketch15.addConstraint([
    Sketcher.Constraint("Coincident", 0, 2, 1, 1),
    Sketcher.Constraint("Coincident", 1, 2, 2, 1),
    Sketcher.Constraint("Coincident", 2, 2, 3, 1),
    Sketcher.Constraint("Coincident", 3, 2, 0, 1),
    Sketcher.Constraint("Vertical", 0),
    Sketcher.Constraint("Horizontal", 1),
    Sketcher.Constraint("Vertical", 2),
    Sketcher.Constraint("Horizontal", 3),
    Sketcher.Constraint("DistanceX", 1, 1, 1, 2, 1.0),
    Sketcher.Constraint("DistanceY", 0, 2, 0, 1, 3.411457),
    Sketcher.Constraint("DistanceY", 0, 2, -1, 1, 11.80942),
    Sketcher.Constraint("DistanceX", 0, 2, -1, 1, 3.010325),
])
pad11 = body.newObject("PartDesign::Pad", "Pad010")
pad11.Profile = sketch15
pad11.Length = 6

# Sketch on XY plane
sketch16 = body.newObject("Sketcher::SketchObject", "Sketch015")
sketch16.AttachmentSupport = (doc.getObject("XY_Plane"), [""])
sketch16.MapMode = "FlatFace"
sketch16.AttachmentOffset = App.Placement(Vector(0, 0, 7.5), App.Rotation())
sketch16.addGeometry([
    Part.LineSegment(Vector(-3.010325, -9.903692, 0), Vector(-3.010325, -10.103692, 0)),
    Part.LineSegment(Vector(-3.010325, -10.103692, 0), Vector(-2.010325, -10.103692, 0)),
    Part.LineSegment(Vector(-2.010325, -10.103692, 0), Vector(-2.010325, -9.903692, 0)),
    Part.LineSegment(Vector(-2.010325, -9.903692, 0), Vector(-3.010325, -9.903692, 0)),
], False)
sketch16.addConstraint([
    Sketcher.Constraint("Coincident", 0, 2, 1, 1),
    Sketcher.Constraint("Coincident", 1, 2, 2, 1),
    Sketcher.Constraint("Coincident", 2, 2, 3, 1),
    Sketcher.Constraint("Coincident", 3, 2, 0, 1),
    Sketcher.Constraint("Vertical", 0),
    Sketcher.Constraint("Horizontal", 1),
    Sketcher.Constraint("Vertical", 2),
    Sketcher.Constraint("Horizontal", 3),
    Sketcher.Constraint("DistanceX", 1, 1, 1, 2, 1.0),
    Sketcher.Constraint("DistanceY", 0, 2, 0, 1, 0.2),
    Sketcher.Constraint("DistanceX", 0, 2, -1, 1, 3.010325),
    Sketcher.Constraint("DistanceY", 0, 2, -1, 1, 10.103692),
])
pocket5 = body.newObject("PartDesign::Pocket", "Pocket004")
pocket5.Profile = sketch16
pocket5.Length = 2

# Sketch on XY plane
sketch17 = body.newObject("Sketcher::SketchObject", "Sketch016")
sketch17.AttachmentSupport = (doc.getObject("XY_Plane"), [""])
sketch17.MapMode = "FlatFace"
sketch17.AttachmentOffset = App.Placement(Vector(0, 0, 1.5), App.Rotation())
sketch17.addGeometry([
    Part.LineSegment(Vector(-8.959517, -8.397964, 0), Vector(-8.959517, -12.044962, 0)),
    Part.LineSegment(Vector(-8.959517, -12.044962, 0), Vector(-7.959517, -12.044962, 0)),
    Part.LineSegment(Vector(-7.959517, -12.044962, 0), Vector(-7.959517, -8.397964, 0)),
    Part.LineSegment(Vector(-7.959517, -8.397964, 0), Vector(-8.959517, -8.397964, 0)),
], False)
sketch17.addConstraint([
    Sketcher.Constraint("Coincident", 0, 2, 1, 1),
    Sketcher.Constraint("Coincident", 1, 2, 2, 1),
    Sketcher.Constraint("Coincident", 2, 2, 3, 1),
    Sketcher.Constraint("Coincident", 3, 2, 0, 1),
    Sketcher.Constraint("Vertical", 0),
    Sketcher.Constraint("Horizontal", 1),
    Sketcher.Constraint("Vertical", 2),
    Sketcher.Constraint("Horizontal", 3),
    Sketcher.Constraint("DistanceX", 1, 1, 1, 2, 1.0),
    Sketcher.Constraint("DistanceY", 0, 2, 0, 1, 3.646998),
    Sketcher.Constraint("DistanceX", 0, 2, -1, 1, 8.959517),
    Sketcher.Constraint("DistanceY", 0, 2, -1, 1, 12.044962),
])
pad12 = body.newObject("PartDesign::Pad", "Pad011")
pad12.Profile = sketch17
pad12.Length = 6

# Sketch on XY plane
sketch18 = body.newObject("Sketcher::SketchObject", "Sketch017")
sketch18.AttachmentSupport = (doc.getObject("XY_Plane"), [""])
sketch18.MapMode = "FlatFace"
sketch18.AttachmentOffset = App.Placement(Vector(0, 0, 7.5), App.Rotation())
sketch18.addGeometry([
    Part.LineSegment(Vector(-8.959517, -10.021463, 0), Vector(-8.959517, -10.221463, 0)),
    Part.LineSegment(Vector(-8.959517, -10.221463, 0), Vector(-7.959517, -10.221463, 0)),
    Part.LineSegment(Vector(-7.959517, -10.221463, 0), Vector(-7.959517, -10.021463, 0)),
    Part.LineSegment(Vector(-7.959517, -10.021463, 0), Vector(-8.959517, -10.021463, 0)),
], False)
sketch18.addConstraint([
    Sketcher.Constraint("Coincident", 0, 2, 1, 1),
    Sketcher.Constraint("Coincident", 1, 2, 2, 1),
    Sketcher.Constraint("Coincident", 2, 2, 3, 1),
    Sketcher.Constraint("Coincident", 3, 2, 0, 1),
    Sketcher.Constraint("Vertical", 0),
    Sketcher.Constraint("Horizontal", 1),
    Sketcher.Constraint("Vertical", 2),
    Sketcher.Constraint("Horizontal", 3),
    Sketcher.Constraint("DistanceX", 1, 1, 1, 2, 1.0),
    Sketcher.Constraint("DistanceY", 0, 2, 0, 1, 0.2),
    Sketcher.Constraint("DistanceX", 0, 2, -1, 1, 8.959517),
    Sketcher.Constraint("DistanceY", 0, 2, -1, 1, 10.221463),
])
pocket6 = body.newObject("PartDesign::Pocket", "Pocket005")
pocket6.Profile = sketch18
pocket6.Length = 2
body2 = doc.addObject("PartDesign::Body", "Body001")
doc.recompute()

body2.BaseFeature = body
doc.recompute()
body.Visibility = False

doc.recompute()
